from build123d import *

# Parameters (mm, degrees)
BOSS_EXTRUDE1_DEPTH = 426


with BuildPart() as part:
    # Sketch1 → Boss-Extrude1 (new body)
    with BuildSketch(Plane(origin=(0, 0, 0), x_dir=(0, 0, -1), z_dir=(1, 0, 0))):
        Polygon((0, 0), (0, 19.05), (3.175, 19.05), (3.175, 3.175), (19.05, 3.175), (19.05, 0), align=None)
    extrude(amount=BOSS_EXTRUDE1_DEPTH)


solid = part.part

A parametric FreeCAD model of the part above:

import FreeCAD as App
import Part
import Sketcher
Q = App.Units.Quantity

doc = App.newDocument("Part")
params = doc.addObject("Spreadsheet::Sheet", "Params")
for row, (alias, value) in enumerate([
    ("sketch1_width", "0.75 in"),
    ("sketch1_width2", "0.125 in"),
    ("pad1_length", "426 mm"),
], start=1):
    params.set(f"A{row}", alias)
    params.set(f"B{row}", "=" + value)
    params.setAlias(f"B{row}", alias)

body = doc.addObject("PartDesign::Body", "Body")

sketch1 = doc.addObject("Sketcher::SketchObject", "Sketch")
body.addObject(sketch1)
sketch1.AttachmentSupport = (doc.YZ_Plane, [""])
sketch1.MapMode = "FlatFace"
sketch1.addGeometry([
    Part.LineSegment(App.Vector(19.1, 0, 0), App.Vector(0, 0, 0)),
    Part.LineSegment(App.Vector(0, 0, 0), App.Vector(0, -19.1, 0)),
    Part.LineSegment(App.Vector(0, -19.1, 0), App.Vector(3.2, -19.1, 0)),
    Part.LineSegment(App.Vector(3.2, -19.1, 0), App.Vector(3.2, -3.2, 0)),
    Part.LineSegment(App.Vector(3.2, -3.2, 0), App.Vector(19.1, -3.2, 0)),
    Part.LineSegment(App.Vector(19.1, -3.2, 0), App.Vector(19.1, 0, 0)),
], False)
sketch1.addConstraint([
    Sketcher.Constraint("Coincident", 0, 2, 1, 1),
    Sketcher.Constraint("Coincident", 1, 2, 2, 1),
    Sketcher.Constraint("Coincident", 2, 2, 3, 1),
    Sketcher.Constraint("Coincident", 3, 2, 4, 1),
    Sketcher.Constraint("Coincident", 4, 2, 5, 1),
    Sketcher.Constraint("Coincident", 5, 2, 0, 1),
    Sketcher.Constraint("Horizontal", 0),
    Sketcher.Constraint("Vertical", 1),
    Sketcher.Constraint("Horizontal", 2),
    Sketcher.Constraint("Vertical", 3),
    Sketcher.Constraint("Horizontal", 4),
    Sketcher.Constraint("Vertical", 5),
    Sketcher.Constraint("Coincident", 0, 2, -1, 1),
    Sketcher.Constraint("Equal", 0, 1),
    Sketcher.Constraint("Equal", 4, 3),
    Sketcher.Constraint("DistanceX", 0, 2, 0, 1, Q("0.75 in")),
    Sketcher.Constraint("DistanceX", 2, 1, 2, 2, Q("0.125 in")),
])
sketch1.setExpression("Constraints[15]", "Params.sketch1_width")
sketch1.setExpression("Constraints[16]", "Params.sketch1_width2")
pad1 = doc.addObject("PartDesign::Pad", "Pad")
body.addObject(pad1)
pad1.Profile = sketch1
pad1.setExpression("Length", "Params.pad1_length")

doc.recompute()
